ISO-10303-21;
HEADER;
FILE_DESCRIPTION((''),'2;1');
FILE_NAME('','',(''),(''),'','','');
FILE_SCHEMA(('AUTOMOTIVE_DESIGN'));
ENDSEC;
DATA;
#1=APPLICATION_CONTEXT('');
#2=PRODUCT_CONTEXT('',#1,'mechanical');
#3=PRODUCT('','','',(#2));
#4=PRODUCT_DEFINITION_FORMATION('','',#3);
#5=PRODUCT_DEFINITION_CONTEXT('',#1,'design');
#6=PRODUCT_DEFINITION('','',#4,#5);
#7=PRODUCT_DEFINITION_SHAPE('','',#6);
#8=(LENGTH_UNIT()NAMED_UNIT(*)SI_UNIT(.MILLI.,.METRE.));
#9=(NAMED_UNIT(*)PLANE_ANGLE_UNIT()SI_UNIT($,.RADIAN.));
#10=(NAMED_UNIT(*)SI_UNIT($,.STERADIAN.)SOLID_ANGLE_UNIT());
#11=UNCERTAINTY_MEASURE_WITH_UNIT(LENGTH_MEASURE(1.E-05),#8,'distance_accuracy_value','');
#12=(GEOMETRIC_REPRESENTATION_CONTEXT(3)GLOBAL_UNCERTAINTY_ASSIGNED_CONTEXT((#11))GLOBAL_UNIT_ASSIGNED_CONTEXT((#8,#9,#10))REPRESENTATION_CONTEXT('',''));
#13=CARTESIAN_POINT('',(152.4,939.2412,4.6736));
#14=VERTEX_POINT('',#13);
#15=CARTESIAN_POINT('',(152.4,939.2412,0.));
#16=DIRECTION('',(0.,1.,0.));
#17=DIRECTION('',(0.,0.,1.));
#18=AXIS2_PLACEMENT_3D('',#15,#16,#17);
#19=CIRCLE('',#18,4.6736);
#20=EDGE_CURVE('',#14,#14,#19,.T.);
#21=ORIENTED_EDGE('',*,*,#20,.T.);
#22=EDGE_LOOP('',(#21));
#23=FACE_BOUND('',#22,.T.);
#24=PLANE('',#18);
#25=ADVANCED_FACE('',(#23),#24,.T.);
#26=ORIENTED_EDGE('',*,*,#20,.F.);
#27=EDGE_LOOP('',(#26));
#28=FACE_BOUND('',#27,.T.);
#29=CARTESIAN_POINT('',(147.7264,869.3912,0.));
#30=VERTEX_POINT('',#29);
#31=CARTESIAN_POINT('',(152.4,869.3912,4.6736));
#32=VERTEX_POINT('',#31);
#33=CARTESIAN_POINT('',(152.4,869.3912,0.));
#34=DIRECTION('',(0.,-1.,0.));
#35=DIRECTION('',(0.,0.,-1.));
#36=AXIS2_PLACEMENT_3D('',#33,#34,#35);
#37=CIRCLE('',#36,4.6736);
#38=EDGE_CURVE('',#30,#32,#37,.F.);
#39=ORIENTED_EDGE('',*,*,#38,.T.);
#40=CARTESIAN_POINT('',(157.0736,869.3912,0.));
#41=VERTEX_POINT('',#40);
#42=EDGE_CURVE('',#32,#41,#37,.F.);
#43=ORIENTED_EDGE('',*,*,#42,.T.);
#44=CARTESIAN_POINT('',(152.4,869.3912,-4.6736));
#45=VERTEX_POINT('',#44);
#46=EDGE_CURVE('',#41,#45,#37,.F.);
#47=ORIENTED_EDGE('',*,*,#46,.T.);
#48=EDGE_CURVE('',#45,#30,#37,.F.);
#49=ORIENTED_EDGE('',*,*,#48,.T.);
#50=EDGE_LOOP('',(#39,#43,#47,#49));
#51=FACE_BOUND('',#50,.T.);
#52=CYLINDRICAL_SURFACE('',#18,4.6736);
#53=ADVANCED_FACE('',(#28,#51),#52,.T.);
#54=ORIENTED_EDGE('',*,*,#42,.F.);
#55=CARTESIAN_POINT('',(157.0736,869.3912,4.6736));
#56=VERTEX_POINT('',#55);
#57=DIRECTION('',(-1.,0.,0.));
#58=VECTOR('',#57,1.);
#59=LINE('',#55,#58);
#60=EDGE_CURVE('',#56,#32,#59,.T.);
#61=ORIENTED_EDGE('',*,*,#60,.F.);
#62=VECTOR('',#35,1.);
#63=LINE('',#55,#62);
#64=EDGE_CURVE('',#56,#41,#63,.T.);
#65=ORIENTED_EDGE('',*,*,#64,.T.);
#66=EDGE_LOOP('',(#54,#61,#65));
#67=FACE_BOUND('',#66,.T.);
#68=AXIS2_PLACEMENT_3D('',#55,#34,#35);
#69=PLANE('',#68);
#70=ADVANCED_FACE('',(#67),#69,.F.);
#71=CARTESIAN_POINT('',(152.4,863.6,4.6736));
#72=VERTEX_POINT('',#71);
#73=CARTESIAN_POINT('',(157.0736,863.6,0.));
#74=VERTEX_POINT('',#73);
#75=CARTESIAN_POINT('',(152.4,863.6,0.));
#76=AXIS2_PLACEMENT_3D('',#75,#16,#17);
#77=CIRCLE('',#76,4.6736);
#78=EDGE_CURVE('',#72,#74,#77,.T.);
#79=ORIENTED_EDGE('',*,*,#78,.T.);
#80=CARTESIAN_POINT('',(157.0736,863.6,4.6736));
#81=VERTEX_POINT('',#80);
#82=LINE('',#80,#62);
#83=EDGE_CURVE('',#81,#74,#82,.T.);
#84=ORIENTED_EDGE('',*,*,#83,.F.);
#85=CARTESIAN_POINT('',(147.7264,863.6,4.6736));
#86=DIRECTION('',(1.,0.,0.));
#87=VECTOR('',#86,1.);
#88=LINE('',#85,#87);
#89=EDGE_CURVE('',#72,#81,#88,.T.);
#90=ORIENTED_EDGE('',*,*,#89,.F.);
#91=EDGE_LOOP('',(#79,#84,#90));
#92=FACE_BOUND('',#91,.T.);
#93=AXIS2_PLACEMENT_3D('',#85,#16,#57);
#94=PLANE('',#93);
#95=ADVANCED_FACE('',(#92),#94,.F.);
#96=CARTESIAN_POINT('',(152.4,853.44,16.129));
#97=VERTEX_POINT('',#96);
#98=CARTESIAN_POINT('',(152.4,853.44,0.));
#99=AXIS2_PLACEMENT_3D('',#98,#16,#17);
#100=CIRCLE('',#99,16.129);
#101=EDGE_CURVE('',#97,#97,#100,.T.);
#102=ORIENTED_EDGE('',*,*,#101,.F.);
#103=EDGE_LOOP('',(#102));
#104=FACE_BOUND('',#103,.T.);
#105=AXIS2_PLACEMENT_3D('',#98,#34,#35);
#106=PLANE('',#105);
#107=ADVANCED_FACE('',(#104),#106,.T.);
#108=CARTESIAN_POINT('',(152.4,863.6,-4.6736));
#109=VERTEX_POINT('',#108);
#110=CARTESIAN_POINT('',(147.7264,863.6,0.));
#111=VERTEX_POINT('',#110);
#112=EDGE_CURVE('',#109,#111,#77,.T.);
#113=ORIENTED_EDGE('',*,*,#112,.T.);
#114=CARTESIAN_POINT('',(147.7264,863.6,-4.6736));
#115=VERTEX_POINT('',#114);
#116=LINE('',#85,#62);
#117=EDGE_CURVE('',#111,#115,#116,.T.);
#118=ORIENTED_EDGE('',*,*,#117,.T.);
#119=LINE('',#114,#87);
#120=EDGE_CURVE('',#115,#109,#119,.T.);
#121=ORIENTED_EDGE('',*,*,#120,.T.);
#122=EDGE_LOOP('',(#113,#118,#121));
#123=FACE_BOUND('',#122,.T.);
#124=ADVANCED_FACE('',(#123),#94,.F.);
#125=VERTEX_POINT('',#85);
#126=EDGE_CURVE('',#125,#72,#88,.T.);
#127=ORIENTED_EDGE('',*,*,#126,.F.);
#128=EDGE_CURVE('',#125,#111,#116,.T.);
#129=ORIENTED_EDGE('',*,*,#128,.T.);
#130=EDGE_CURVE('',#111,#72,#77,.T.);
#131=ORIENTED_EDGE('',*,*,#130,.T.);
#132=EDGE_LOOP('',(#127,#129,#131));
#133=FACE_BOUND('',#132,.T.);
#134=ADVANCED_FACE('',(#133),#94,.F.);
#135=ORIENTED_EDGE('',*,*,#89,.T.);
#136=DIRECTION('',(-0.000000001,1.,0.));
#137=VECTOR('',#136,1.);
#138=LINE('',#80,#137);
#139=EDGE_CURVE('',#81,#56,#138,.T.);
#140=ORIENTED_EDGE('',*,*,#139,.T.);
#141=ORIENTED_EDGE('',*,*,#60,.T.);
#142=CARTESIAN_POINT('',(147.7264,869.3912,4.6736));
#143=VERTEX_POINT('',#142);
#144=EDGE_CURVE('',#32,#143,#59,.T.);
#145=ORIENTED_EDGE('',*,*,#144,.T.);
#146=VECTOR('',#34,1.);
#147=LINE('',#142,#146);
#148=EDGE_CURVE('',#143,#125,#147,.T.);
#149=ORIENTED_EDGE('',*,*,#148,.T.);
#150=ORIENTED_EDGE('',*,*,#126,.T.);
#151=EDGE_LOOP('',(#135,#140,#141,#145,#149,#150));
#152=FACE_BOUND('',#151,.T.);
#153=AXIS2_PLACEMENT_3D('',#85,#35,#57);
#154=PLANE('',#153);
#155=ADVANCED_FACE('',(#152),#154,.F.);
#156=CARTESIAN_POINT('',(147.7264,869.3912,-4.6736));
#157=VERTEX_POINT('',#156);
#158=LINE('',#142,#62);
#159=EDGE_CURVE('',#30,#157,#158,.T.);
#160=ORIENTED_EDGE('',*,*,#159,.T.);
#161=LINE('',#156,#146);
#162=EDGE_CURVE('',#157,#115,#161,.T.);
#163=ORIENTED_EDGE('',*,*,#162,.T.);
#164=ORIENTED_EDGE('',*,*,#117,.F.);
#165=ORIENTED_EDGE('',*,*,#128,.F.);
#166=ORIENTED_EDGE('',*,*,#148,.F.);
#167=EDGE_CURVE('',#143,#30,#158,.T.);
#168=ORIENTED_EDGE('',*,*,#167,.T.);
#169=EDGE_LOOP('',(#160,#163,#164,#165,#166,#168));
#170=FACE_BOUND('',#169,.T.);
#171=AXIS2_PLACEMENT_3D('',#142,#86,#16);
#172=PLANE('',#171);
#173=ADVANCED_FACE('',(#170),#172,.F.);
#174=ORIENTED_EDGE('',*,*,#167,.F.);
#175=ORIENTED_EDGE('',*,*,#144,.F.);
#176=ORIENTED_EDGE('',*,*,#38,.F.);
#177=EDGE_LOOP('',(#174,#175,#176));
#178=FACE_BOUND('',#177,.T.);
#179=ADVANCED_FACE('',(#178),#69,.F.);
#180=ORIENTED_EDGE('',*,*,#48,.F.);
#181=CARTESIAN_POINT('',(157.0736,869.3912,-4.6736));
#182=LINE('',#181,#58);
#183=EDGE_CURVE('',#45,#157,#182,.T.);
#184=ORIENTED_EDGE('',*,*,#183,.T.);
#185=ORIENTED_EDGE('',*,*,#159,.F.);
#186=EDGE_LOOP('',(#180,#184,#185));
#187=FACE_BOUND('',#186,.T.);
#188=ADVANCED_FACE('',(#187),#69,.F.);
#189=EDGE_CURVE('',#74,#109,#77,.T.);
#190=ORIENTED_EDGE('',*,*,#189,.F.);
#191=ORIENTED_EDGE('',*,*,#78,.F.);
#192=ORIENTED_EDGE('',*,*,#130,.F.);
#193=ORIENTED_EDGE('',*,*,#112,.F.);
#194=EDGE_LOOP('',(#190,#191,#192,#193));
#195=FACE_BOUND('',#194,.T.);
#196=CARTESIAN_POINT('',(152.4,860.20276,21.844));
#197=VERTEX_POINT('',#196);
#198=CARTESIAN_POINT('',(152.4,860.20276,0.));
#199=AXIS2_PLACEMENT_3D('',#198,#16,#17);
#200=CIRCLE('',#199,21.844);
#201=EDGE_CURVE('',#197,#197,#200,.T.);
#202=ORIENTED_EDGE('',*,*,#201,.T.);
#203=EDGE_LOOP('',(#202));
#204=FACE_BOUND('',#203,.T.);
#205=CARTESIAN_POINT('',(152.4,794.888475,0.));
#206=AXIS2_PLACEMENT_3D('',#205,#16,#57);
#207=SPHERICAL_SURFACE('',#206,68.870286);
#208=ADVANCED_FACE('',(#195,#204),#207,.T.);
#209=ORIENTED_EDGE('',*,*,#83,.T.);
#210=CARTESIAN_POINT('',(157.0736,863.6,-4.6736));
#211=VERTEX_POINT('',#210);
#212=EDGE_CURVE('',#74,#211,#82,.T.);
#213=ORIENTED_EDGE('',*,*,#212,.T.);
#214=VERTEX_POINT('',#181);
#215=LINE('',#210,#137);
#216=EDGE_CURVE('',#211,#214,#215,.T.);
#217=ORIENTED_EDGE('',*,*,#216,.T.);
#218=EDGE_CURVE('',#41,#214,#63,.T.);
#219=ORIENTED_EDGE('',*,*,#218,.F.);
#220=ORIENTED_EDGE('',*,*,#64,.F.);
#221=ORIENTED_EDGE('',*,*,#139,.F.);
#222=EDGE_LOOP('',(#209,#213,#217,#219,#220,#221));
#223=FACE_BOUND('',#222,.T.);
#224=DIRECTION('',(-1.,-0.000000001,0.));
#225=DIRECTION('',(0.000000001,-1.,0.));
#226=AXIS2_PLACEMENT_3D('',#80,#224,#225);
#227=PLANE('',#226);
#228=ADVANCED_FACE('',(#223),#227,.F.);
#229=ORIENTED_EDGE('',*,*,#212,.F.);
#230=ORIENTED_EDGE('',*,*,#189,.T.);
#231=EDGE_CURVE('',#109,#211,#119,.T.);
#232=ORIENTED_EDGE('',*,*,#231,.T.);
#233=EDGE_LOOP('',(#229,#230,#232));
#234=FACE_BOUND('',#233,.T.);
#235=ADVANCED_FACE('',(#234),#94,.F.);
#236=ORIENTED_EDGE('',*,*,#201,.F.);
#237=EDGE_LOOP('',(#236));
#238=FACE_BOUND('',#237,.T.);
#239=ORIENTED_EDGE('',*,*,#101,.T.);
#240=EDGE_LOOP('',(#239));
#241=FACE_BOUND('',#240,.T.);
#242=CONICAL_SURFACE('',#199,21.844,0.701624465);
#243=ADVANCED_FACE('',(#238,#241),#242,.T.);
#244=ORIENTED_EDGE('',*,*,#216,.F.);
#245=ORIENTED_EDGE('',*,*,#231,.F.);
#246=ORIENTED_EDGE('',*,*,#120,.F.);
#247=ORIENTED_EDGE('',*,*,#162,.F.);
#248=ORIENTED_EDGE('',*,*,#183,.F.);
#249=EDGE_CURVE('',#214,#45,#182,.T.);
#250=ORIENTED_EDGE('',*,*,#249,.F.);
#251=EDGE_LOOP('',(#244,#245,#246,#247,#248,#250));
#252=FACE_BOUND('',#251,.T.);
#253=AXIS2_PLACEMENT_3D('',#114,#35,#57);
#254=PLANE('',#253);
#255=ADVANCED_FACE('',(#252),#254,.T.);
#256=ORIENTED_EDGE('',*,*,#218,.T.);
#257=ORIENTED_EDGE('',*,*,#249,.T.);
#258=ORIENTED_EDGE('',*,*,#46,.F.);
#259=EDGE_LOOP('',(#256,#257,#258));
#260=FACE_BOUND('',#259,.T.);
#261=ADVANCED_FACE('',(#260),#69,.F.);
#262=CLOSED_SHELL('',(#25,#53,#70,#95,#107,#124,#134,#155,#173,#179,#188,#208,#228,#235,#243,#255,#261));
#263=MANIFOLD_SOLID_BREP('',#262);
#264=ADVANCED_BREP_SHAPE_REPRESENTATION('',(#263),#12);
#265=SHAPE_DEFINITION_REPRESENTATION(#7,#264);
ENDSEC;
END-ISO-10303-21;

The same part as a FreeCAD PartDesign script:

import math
import FreeCAD as App
import Part
import Sketcher
Q = App.Units.Quantity

doc = App.newDocument("Part")
body = doc.addObject("PartDesign::Body", "Body")

sketch1 = doc.addObject("Sketcher::SketchObject", "Sketch")
body.addObject(sketch1)
sketch1.AttachmentSupport = (doc.XY_Plane, [""])
sketch1.MapMode = "FlatFace"
sketch1.addGeometry([
    Part.LineSegment(App.Vector(152.4, 853.4, 0), App.Vector(152.4, 939.2, 0)),
    Part.LineSegment(App.Vector(152.4, 939.2, 0), App.Vector(147.7, 939.2, 0)),
    Part.LineSegment(App.Vector(147.7, 939.2, 0), App.Vector(147.7, 863.6, 0)),
    Part.ArcOfCircle(Part.Circle(App.Vector(152.4, 794.9, 0), App.Vector(0, 0, 1), 68.9), math.radians(93.89), math.radians(108.49)),
    Part.LineSegment(App.Vector(130.6, 860.2, 0), App.Vector(136.3, 853.4, 0)),
    Part.LineSegment(App.Vector(136.3, 853.4, 0), App.Vector(152.4, 853.4, 0)),
], False)
sketch1.addGeometry(Part.LineSegment(App.Vector(152.4, 939.2, 0), App.Vector(152.4, 794.9, 0)), True)
sketch1.addConstraint([
    Sketcher.Constraint("Coincident", 0, 2, 1, 1),
    Sketcher.Constraint("Coincident", 1, 2, 2, 1),
    Sketcher.Constraint("Coincident", 2, 2, 3, 1),
    Sketcher.Constraint("Coincident", 3, 2, 4, 1),
    Sketcher.Constraint("Coincident", 4, 2, 5, 1),
    Sketcher.Constraint("Coincident", 5, 2, 0, 1),
    Sketcher.Constraint("Vertical", 0),
    Sketcher.Constraint("Horizontal", 1),
    Sketcher.Constraint("Vertical", 2),
    Sketcher.Constraint("Horizontal", 5),
    Sketcher.Constraint("Vertical", 6),
    Sketcher.Constraint("Coincident", 6, 1, 0, 2),
    Sketcher.Constraint("Coincident", 6, 2, 3, 3),
    Sketcher.Constraint("DistanceX", -1, 1, 3, 3, Q("6 in")),
    Sketcher.Constraint("DistanceY", -1, 1, 2, 2, Q("34 in")),
    Sketcher.Constraint("DistanceY", -1, 1, 4, 2, Q("33.6 in")),
    Sketcher.Constraint("DistanceX", 1, 2, 1, 1, Q("0.184 in")),
    Sketcher.Constraint("DistanceX", 5, 1, 5, 2, Q("0.635 in")),
    Sketcher.Constraint("DistanceY", 0, 1, 0, 2, Q("3.378 in")),
    Sketcher.Constraint("DistanceX", -1, 1, 3, 2, Q("5.14 in")),
    Sketcher.Constraint("Radius", 3, 68.870286),
])
revolution = doc.addObject("PartDesign::Revolution", "Revolution")
body.addObject(revolution)
revolution.Profile = sketch1
revolution.ReferenceAxis = (sketch1, ["Axis0"])
revolution.Angle = 360

sketch2 = doc.addObject("Sketcher::SketchObject", "Sketch001")
body.addObject(sketch2)
sketch2.AttachmentSupport = (doc.XY_Plane, [""])
sketch2.MapMode = "FlatFace"
sketch2.addGeometry([
    Part.LineSegment(App.Vector(157, 864, 0), App.Vector(157, 869, 0)),
    Part.LineSegment(App.Vector(157, 869, 0), App.Vector(148, 869, 0)),
    Part.LineSegment(App.Vector(148, 869, 0), App.Vector(148, 864, 0)),
    Part.LineSegment(App.Vector(148, 864, 0), App.Vector(157, 864, 0)),
], False)
sketch2.addConstraint([
    Sketcher.Constraint("Coincident", 0, 2, 1, 1),
    Sketcher.Constraint("Coincident", 1, 2, 2, 1),
    Sketcher.Constraint("Coincident", 2, 2, 3, 1),
    Sketcher.Constraint("Coincident", 3, 2, 0, 1),
    Sketcher.Constraint("Vertical", 0),
    Sketcher.Constraint("Horizontal", 1),
    Sketcher.Constraint("Vertical", 2),
    Sketcher.Constraint("Horizontal", 3),
    Sketcher.Constraint("DistanceY", -1, 1, 2, 2, Q("34 in")),
    Sketcher.Constraint("DistanceX", 1, 2, 1, 1, Q("0.368 in")),
    Sketcher.Constraint("DistanceY", 0, 1, 0, 2, Q("0.228 in")),
    Sketcher.Constraint("DistanceX", -1, 1, 0, 2, Q("6.184 in")),
])
pad1 = doc.addObject("PartDesign::Pad", "Pad")
body.addObject(pad1)
pad1.Profile = sketch2
pad1.Length = Q("0.368 in")
pad1.Midplane = True

doc.recompute()
